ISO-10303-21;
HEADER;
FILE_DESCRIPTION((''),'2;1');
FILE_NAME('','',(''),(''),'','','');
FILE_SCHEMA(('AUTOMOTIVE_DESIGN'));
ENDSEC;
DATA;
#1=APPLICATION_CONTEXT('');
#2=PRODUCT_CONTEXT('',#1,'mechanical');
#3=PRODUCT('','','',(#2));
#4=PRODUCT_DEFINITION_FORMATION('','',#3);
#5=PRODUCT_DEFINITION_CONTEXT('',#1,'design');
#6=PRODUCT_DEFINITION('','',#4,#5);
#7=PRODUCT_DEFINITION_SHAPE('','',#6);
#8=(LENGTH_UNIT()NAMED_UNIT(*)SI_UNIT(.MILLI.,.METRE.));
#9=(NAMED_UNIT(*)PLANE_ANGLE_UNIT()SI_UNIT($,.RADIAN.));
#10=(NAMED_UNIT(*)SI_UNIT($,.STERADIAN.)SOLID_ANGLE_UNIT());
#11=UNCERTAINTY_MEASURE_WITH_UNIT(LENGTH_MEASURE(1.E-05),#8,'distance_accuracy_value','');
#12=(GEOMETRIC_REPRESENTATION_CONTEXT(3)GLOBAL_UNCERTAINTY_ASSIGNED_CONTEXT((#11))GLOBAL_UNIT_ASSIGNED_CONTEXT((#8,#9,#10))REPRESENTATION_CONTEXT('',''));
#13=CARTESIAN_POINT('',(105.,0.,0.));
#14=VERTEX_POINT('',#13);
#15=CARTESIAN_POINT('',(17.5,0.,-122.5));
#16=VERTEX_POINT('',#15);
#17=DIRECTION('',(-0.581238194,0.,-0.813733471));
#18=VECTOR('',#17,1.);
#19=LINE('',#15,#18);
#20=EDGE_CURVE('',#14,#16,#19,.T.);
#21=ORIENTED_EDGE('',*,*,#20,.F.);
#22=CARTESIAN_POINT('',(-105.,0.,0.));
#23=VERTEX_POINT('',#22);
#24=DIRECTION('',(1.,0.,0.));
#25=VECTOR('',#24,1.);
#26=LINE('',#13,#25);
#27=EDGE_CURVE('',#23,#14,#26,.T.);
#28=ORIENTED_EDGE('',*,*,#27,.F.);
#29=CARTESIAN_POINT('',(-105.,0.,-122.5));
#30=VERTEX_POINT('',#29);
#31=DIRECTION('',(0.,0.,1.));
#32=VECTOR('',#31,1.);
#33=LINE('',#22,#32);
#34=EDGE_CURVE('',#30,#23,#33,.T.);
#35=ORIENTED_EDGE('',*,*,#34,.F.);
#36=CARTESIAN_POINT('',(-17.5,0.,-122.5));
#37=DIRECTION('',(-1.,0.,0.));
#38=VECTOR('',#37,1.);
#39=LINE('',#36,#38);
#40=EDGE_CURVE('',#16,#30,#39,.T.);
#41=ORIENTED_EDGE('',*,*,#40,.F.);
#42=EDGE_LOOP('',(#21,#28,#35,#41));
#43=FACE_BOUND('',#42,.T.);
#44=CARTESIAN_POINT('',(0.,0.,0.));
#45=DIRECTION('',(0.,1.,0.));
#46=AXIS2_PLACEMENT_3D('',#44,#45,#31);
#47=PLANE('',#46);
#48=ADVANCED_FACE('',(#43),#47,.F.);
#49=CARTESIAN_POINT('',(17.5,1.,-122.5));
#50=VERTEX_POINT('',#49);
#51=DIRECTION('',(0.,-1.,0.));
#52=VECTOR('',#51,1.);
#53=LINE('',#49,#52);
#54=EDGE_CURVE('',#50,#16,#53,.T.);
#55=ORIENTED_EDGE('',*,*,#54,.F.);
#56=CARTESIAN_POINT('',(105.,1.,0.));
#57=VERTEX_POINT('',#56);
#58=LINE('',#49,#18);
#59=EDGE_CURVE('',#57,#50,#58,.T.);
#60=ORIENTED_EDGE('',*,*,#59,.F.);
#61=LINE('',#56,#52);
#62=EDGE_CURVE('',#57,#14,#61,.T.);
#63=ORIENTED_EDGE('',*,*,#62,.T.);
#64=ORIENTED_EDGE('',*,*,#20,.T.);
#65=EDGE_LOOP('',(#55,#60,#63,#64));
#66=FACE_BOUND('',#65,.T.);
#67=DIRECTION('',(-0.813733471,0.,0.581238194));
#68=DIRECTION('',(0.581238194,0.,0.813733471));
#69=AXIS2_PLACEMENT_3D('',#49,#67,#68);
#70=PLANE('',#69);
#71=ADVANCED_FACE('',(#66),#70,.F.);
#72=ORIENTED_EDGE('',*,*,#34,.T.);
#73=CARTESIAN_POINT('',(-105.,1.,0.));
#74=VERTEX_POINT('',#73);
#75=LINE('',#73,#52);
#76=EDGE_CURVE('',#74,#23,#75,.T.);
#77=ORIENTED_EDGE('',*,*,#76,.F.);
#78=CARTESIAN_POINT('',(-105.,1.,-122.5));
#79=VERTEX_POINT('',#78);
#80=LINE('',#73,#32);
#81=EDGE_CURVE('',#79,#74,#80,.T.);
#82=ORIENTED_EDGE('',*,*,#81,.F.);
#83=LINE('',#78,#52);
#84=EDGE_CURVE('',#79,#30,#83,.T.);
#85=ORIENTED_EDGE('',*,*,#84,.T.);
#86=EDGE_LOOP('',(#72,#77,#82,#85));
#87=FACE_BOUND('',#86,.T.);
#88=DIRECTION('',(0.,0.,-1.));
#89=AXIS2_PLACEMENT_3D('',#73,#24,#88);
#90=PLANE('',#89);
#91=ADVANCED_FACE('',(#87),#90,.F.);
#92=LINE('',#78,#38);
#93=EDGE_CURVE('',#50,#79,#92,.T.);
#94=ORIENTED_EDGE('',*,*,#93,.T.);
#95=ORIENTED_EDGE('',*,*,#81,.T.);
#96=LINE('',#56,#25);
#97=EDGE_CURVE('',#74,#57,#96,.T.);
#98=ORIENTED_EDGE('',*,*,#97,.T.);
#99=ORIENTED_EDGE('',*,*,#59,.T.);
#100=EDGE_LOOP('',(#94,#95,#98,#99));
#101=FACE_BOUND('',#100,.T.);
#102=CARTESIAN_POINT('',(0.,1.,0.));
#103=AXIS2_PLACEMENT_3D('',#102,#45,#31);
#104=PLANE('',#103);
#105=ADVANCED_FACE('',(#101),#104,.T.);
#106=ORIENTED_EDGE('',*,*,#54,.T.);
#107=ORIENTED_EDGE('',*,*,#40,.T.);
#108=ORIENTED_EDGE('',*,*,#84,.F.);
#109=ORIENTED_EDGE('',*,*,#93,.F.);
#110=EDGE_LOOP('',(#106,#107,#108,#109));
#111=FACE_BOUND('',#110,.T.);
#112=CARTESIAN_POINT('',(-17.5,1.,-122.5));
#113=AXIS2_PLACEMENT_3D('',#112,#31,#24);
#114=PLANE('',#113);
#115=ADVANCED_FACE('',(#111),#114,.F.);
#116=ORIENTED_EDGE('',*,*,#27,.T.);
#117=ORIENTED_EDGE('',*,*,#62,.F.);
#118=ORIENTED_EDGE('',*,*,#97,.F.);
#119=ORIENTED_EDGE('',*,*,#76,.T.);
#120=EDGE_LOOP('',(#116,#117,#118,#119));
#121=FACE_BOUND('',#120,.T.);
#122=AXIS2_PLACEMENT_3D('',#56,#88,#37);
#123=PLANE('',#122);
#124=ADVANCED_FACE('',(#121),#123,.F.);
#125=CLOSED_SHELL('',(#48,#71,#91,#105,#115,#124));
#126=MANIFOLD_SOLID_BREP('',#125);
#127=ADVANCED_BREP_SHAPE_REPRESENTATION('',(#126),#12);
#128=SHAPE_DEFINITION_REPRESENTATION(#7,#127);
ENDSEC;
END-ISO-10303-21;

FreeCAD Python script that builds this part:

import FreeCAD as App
import Part
import Sketcher
from FreeCAD import Vector
Q = App.Units.Quantity


def add_polygon(sketch, points):
    """Adds a closed chain of lines whose ends are joined by coincident constraints."""
    first, n = sketch.GeometryCount, len(points)
    for a, b in zip(points, points[1:] + points[:1]):
        sketch.addGeometry(Part.LineSegment(App.Vector(*a, 0), App.Vector(*b, 0)), False)
    for i in range(n):
        sketch.addConstraint(Sketcher.Constraint("Coincident", first + i, 2, first + (i + 1) % n, 1))

doc = App.newDocument("Part")
body = doc.addObject("PartDesign::Body", "Body")

sketch1 = body.newObject("Sketcher::SketchObject", "Sketch")
sketch1.AttachmentSupport = (doc.getObject("XZ_Plane"), [""])
sketch1.MapMode = "FlatFace"
add_polygon(sketch1, [(18, -122), (-105, -122), (-105, 0), (105, 0)])
sketch1.addConstraint([
    Sketcher.Constraint("Horizontal", 0),
    Sketcher.Constraint("Vertical", 1),
    Sketcher.Constraint("Horizontal", 2),
    Sketcher.Constraint("Symmetric", 1, 2, 2, 2, -1, 1),
    Sketcher.Constraint("Equal", 0, 1),
    Sketcher.Constraint("DistanceX", 2, 1, 2, 2, Q("210 mm")),
    Sketcher.Constraint("DistanceX", 0, 2, 0, 1, Q("122.5 mm")),
])
pad1 = body.newObject("PartDesign::Pad", "Pad")
pad1.Profile = sketch1
pad1.Length = 1
pad1.Reversed = True

doc.recompute()
